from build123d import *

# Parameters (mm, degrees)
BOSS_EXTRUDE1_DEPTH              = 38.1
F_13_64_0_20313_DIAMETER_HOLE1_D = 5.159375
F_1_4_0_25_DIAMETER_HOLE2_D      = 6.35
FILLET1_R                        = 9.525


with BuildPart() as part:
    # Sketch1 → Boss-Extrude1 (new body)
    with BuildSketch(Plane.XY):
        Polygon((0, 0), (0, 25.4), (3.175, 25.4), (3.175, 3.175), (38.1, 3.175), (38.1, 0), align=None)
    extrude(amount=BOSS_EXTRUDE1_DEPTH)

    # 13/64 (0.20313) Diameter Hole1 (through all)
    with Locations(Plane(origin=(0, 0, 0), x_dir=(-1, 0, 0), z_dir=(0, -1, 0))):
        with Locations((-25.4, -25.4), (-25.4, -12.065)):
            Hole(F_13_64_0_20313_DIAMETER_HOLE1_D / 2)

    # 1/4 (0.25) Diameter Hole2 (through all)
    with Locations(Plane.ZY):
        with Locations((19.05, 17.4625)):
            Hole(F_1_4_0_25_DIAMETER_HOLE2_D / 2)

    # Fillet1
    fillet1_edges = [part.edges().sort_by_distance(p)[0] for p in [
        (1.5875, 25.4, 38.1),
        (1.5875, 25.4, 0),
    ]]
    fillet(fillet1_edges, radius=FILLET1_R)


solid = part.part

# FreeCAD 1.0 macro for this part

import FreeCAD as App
import Part
import Sketcher

V = App.Vector
Q = App.Units.Quantity


def edges_at(feature, points):
    """Names of the edges that pass closest to the given points."""
    edges = feature.Shape.Edges
    near = lambda p: min(range(len(edges)), key=lambda i: edges[i].distToShape(Part.Vertex(*p))[0])
    return sorted({f"Edge{near(p) + 1}" for p in points})


def add_polygon(sketch, points):
    """Adds a closed chain of lines whose ends are joined by coincident constraints."""
    first, n = sketch.GeometryCount, len(points)
    for a, b in zip(points, points[1:] + points[:1]):
        sketch.addGeometry(Part.LineSegment(App.Vector(*a, 0), App.Vector(*b, 0)), False)
    for i in range(n):
        sketch.addConstraint(Sketcher.Constraint("Coincident", first + i, 2, first + (i + 1) % n, 1))

doc = App.newDocument("Part")
params = doc.addObject("Spreadsheet::Sheet", "Params")
for row, (alias, value) in enumerate([
    ("sketch1_height", "1 in"),
    ("sketch1_width", "1.5 in"),
    ("sketch1_width2", "1.375 in"),
    ("pad1_length", "1.5 in"),
    ("sketch2_diameter", "0.203125 in"),
    ("hole_diameter", "0.203125 in"),
    ("sketch3_diameter", "0.25 in"),
    ("hole2_diameter", "0.25 in"),
    ("fillet_radius", "0.375 in"),
], start=1):
    params.set(f"A{row}", alias)
    params.set(f"B{row}", "=" + value)
    params.setAlias(f"B{row}", alias)

body = doc.addObject("PartDesign::Body", "Body")

sketch1 = body.newObject("Sketcher::SketchObject", "Sketch")
sketch1.AttachmentSupport = (doc.getObject("XY_Plane"), [""])
sketch1.MapMode = "FlatFace"
add_polygon(sketch1, [(0, 25.4), (0, 0), (38.1, 0), (38.1, 3.2), (3.2, 3.2), (3.2, 25.4)])
sketch1.addConstraint([
    Sketcher.Constraint("Vertical", 0),
    Sketcher.Constraint("Horizontal", 1),
    Sketcher.Constraint("Vertical", 2),
    Sketcher.Constraint("Horizontal", 3),
    Sketcher.Constraint("Vertical", 4),
    Sketcher.Constraint("Horizontal", 5),
    Sketcher.Constraint("Coincident", 0, 2, -1, 1),
    Sketcher.Constraint("Equal", 5, 2),
    Sketcher.Constraint("DistanceY", 0, 2, 0, 1, Q("1 in")),
    Sketcher.Constraint("DistanceX", 1, 1, 1, 2, Q("1.5 in")),
    Sketcher.Constraint("DistanceX", 3, 2, 3, 1, Q("1.375 in")),
])
sketch1.setExpression("Constraints[14]", "Params.sketch1_height")
sketch1.setExpression("Constraints[15]", "Params.sketch1_width")
sketch1.setExpression("Constraints[16]", "Params.sketch1_width2")
pad1 = body.newObject("PartDesign::Pad", "Pad")
pad1.Profile = sketch1
pad1.setExpression("Length", "Params.pad1_length")

sketch2 = body.newObject("Sketcher::SketchObject", "Sketch001")
sketch2.AttachmentSupport = (doc.getObject("XZ_Plane"), [""])
sketch2.MapMode = "FlatFace"
sketch2.addGeometry([
    Part.Circle(V(25.4, 25.4, 0), V(0, 0, 1), 2.6),
    Part.Circle(V(25.4, 12.1, 0), V(0, 0, 1), 2.6),
], False)
sketch2.addConstraint([
    Sketcher.Constraint("Equal", 0, 1),
    Sketcher.Constraint("Vertical", 0, 3, 1, 3),
    Sketcher.Constraint("Diameter", 0, Q("0.203125 in")),
    Sketcher.Constraint("DistanceX", -1, 1, 0, 3, Q("1 in")),
    Sketcher.Constraint("DistanceY", -1, 1, 0, 3, Q("1 in")),
    Sketcher.Constraint("DistanceY", -1, 1, 1, 3, Q("0.475 in")),
])
sketch2.setExpression("Constraints[2]", "Params.sketch2_diameter")
doc.recompute()
hole = body.newObject("PartDesign::Hole", "Hole")
hole.Profile = sketch2
hole.ThreadType = "None"
hole.setExpression("Diameter", "Params.hole_diameter")
hole.DepthType = "ThroughAll"

sketch3 = body.newObject("Sketcher::SketchObject", "Sketch002")
sketch3.AttachmentSupport = (doc.getObject("YZ_Plane"), [""])
sketch3.MapMode = "FlatFace"
sketch3.addGeometry(Part.Circle(V(17.5, 19.1, 0), V(0, 0, 1), 3.2), False)
sketch3.addConstraint([
    Sketcher.Constraint("Diameter", 0, Q("0.25 in")),
    Sketcher.Constraint("DistanceY", -1, 1, 0, 3, Q("0.75 in")),
    Sketcher.Constraint("DistanceX", -1, 1, 0, 3, Q("0.6875 in")),
])
sketch3.setExpression("Constraints[0]", "Params.sketch3_diameter")
doc.recompute()
hole2 = body.newObject("PartDesign::Hole", "Hole001")
hole2.Profile = sketch3
hole2.ThreadType = "None"
hole2.setExpression("Diameter", "Params.hole2_diameter")
hole2.DepthType = "ThroughAll"
hole2.Reversed = True
doc.recompute()

fillet = body.newObject("PartDesign::Fillet", "Fillet")
fillet.Base = (hole2, edges_at(hole2, [(1.587, 25.4, 38.1), (1.587, 25.4, 0)]))
fillet.setExpression("Radius", "Params.fillet_radius")

doc.recompute()
